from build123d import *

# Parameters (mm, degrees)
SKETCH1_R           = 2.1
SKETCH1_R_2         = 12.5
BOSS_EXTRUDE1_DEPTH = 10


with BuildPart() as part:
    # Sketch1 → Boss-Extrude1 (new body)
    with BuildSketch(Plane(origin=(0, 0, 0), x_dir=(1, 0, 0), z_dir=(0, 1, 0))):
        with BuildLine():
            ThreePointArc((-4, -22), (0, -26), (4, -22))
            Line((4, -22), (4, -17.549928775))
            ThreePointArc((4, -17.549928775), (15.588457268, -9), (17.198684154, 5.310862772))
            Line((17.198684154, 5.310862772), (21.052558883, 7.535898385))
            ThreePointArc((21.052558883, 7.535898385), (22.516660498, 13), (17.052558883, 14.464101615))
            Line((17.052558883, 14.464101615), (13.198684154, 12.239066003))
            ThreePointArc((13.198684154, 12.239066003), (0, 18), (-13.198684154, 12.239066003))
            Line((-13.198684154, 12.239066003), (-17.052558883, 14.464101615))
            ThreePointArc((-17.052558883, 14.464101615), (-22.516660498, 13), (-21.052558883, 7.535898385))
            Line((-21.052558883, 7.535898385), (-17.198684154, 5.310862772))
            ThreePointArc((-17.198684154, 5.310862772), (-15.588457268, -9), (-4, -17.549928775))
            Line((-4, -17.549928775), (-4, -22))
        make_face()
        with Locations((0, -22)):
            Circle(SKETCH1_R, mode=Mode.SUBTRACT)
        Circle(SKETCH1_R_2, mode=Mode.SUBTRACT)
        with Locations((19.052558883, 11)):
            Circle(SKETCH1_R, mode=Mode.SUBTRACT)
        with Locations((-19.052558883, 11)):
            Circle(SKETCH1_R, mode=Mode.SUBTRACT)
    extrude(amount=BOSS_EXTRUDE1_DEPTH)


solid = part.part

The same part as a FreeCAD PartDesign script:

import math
import FreeCAD as App
import Part
import Sketcher
Q = App.Units.Quantity

doc = App.newDocument("Part")
body = doc.addObject("PartDesign::Body", "Body")

# Sketch on XZ plane
sketch1 = body.newObject("Sketcher::SketchObject", "Sketch")
sketch1.AttachmentSupport = (doc.getObject("XZ_Plane"), [""])
sketch1.MapMode = "FlatFace"
sketch1.addGeometry([
    Part.ArcOfCircle(Part.Circle(App.Vector(0, 22, 0), App.Vector(0, 0, 1), 4), math.radians(0), math.radians(180)),  # 0
    Part.LineSegment(App.Vector(4, 22, 0), App.Vector(4, 17.5, 0)),  # 1
    Part.ArcOfCircle(Part.Circle(App.Vector(0, 0, 0), App.Vector(0, 0, 1), 18), math.radians(-17), math.radians(77)),  # 2
    Part.LineSegment(App.Vector(17.2, -5.3, 0), App.Vector(21.1, -7.5, 0)),  # 3
    Part.ArcOfCircle(Part.Circle(App.Vector(19.1, -11, 0), App.Vector(0, 0, 1), 4), math.radians(-120), math.radians(60)),  # 4
    Part.LineSegment(App.Vector(17.1, -14.5, 0), App.Vector(13.2, -12.2, 0)),  # 5
    Part.ArcOfCircle(Part.Circle(App.Vector(0, 0, 0), App.Vector(0, 0, 1), 18), math.radians(-137), math.radians(-43)),  # 6
    Part.LineSegment(App.Vector(-13.2, -12.2, 0), App.Vector(-17.1, -14.5, 0)),  # 7
    Part.ArcOfCircle(Part.Circle(App.Vector(-19.1, -11, 0), App.Vector(0, 0, 1), 4), math.radians(120), math.radians(300)),  # 8
    Part.LineSegment(App.Vector(-21.1, -7.5, 0), App.Vector(-17.2, -5.3, 0)),  # 9
    Part.ArcOfCircle(Part.Circle(App.Vector(0, 0, 0), App.Vector(0, 0, 1), 18), math.radians(103), math.radians(197)),  # 10
    Part.LineSegment(App.Vector(-4, 17.5, 0), App.Vector(-4, 22, 0)),  # 11
    Part.Circle(App.Vector(0, 22, 0), App.Vector(0, 0, 1), 2.1),  # 12
    Part.Circle(App.Vector(-19.1, -11, 0), App.Vector(0, 0, 1), 2.1),  # 13
    Part.Circle(App.Vector(0, 0, 0), App.Vector(0, 0, 1), 12.5),  # 14
    Part.Circle(App.Vector(19.1, -11, 0), App.Vector(0, 0, 1), 2.1),  # 15
], False)
sketch1.addConstraint([
    Sketcher.Constraint("Tangent", 0, 1, 1, 1),
    Sketcher.Constraint("Coincident", 1, 2, 2, 2),
    Sketcher.Constraint("Coincident", 2, 1, 3, 1),
    Sketcher.Constraint("Tangent", 3, 2, 4, 2),
    Sketcher.Constraint("Tangent", 4, 1, 5, 1),
    Sketcher.Constraint("Coincident", 5, 2, 6, 2),
    Sketcher.Constraint("Coincident", 6, 1, 7, 1),
    Sketcher.Constraint("Tangent", 7, 2, 8, 2),
    Sketcher.Constraint("Tangent", 8, 1, 9, 1),
    Sketcher.Constraint("Coincident", 9, 2, 10, 2),
    Sketcher.Constraint("Coincident", 10, 1, 11, 1),
    Sketcher.Constraint("Tangent", 11, 2, 0, 2),
    Sketcher.Constraint("Vertical", 1),
    Sketcher.Constraint("Vertical", 11),
    Sketcher.Constraint("Coincident", 2, 3, -1, 1),
    Sketcher.Constraint("Coincident", 6, 3, -1, 1),
    Sketcher.Constraint("Coincident", 10, 3, -1, 1),
    Sketcher.Constraint("Coincident", 14, 3, -1, 1),
    Sketcher.Constraint("Coincident", 12, 3, 0, 3),
    Sketcher.Constraint("Coincident", 13, 3, 8, 3),
    Sketcher.Constraint("Coincident", 15, 3, 4, 3),
    Sketcher.Constraint("Equal", 0, 4),
    Sketcher.Constraint("Equal", 2, 6),
    Sketcher.Constraint("Equal", 4, 8),
    Sketcher.Constraint("Equal", 6, 10),
    Sketcher.Constraint("Equal", 12, 13),
    Sketcher.Constraint("Equal", 13, 15),
    Sketcher.Constraint("Symmetric", 4, 3, 8, 3, -2),
    Sketcher.Constraint("PointOnObject", 0, 3, -2),
    Sketcher.Constraint("Parallel", 3, 5),
    Sketcher.Constraint("Parallel", 7, 9),
    Sketcher.Constraint("Horizontal", 5, 2, 6, 1),
    Sketcher.Constraint("Equal", 3, 5),
    Sketcher.Constraint("Diameter", 14, Q("25 mm")),
    Sketcher.Constraint("Radius", 0, Q("4 mm")),
    Sketcher.Constraint("Radius", 2, Q("18 mm")),
    Sketcher.Constraint("Diameter", 12, Q("4.2 mm")),
    Sketcher.Constraint("Angle", 3, Q("-30 deg")),
    Sketcher.Constraint("DistanceY", -1, 1, 0, 3, Q("22 mm")),
    Sketcher.Constraint("DistanceY", 4, 3, -1, 1, Q("11 mm")),
])
pad1 = body.newObject("PartDesign::Pad", "Pad")
pad1.Profile = sketch1
pad1.Length = 10
pad1.Reversed = True

doc.recompute()
